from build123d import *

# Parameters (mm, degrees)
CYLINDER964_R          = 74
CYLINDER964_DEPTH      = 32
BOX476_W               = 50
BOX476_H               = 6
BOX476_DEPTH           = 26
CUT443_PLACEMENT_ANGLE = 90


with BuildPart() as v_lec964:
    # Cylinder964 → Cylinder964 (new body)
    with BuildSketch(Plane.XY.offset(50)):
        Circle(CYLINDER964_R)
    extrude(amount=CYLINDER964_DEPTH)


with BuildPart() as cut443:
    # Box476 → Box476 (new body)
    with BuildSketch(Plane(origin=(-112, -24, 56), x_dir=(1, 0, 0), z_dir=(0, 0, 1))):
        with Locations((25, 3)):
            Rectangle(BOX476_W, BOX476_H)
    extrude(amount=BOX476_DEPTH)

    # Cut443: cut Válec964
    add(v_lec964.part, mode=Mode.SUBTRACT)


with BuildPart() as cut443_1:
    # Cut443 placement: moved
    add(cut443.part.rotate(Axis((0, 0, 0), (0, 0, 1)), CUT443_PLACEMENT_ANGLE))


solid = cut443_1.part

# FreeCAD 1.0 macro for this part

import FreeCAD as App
import Part
import Sketcher
from FreeCAD import Vector
Q = App.Units.Quantity

doc = App.newDocument("Part")
body = doc.addObject("PartDesign::Body", "Body")

sketch1 = body.newObject("Sketcher::SketchObject", "Sketch")
sketch1.AttachmentSupport = (doc.getObject("XY_Plane"), [""])
sketch1.MapMode = "FlatFace"
sketch1.AttachmentOffset = App.Placement(Vector(0, 0, 50), App.Rotation())
sketch1.addGeometry(Part.Circle(Vector(0, 0, 0), Vector(0, 0, 1), 74), False)
sketch1.addConstraint([
    Sketcher.Constraint("Coincident", 0, 3, -1, 1),
    Sketcher.Constraint("Diameter", 0, Q("148 mm")),
])
pad1 = body.newObject("PartDesign::Pad", "Pad")
pad1.Profile = sketch1
pad1.Length = 32
body2 = doc.addObject("PartDesign::Body", "Body001")

sketch2 = body2.newObject("Sketcher::SketchObject", "Sketch001")
sketch2.AttachmentSupport = (doc.getObject("XY_Plane001"), [""])
sketch2.MapMode = "FlatFace"
sketch2.AttachmentOffset = App.Placement(Vector(0, 0, 56), App.Rotation())
sketch2.addGeometry([
    Part.LineSegment(Vector(-112, -18, 0), Vector(-112, -24, 0)),
    Part.LineSegment(Vector(-112, -24, 0), Vector(-62, -24, 0)),
    Part.LineSegment(Vector(-62, -24, 0), Vector(-62, -18, 0)),
    Part.LineSegment(Vector(-62, -18, 0), Vector(-112, -18, 0)),
], False)
sketch2.addConstraint([
    Sketcher.Constraint("Coincident", 0, 2, 1, 1),
    Sketcher.Constraint("Coincident", 1, 2, 2, 1),
    Sketcher.Constraint("Coincident", 2, 2, 3, 1),
    Sketcher.Constraint("Coincident", 3, 2, 0, 1),
    Sketcher.Constraint("Vertical", 0),
    Sketcher.Constraint("Horizontal", 1),
    Sketcher.Constraint("Vertical", 2),
    Sketcher.Constraint("Horizontal", 3),
    Sketcher.Constraint("DistanceX", 1, 1, 1, 2, Q("50 mm")),
    Sketcher.Constraint("DistanceY", 0, 2, 0, 1, Q("6 mm")),
    Sketcher.Constraint("DistanceX", 0, 2, -1, 1, Q("112 mm")),
    Sketcher.Constraint("DistanceY", 0, 2, -1, 1, Q("24 mm")),
])
pad2 = body2.newObject("PartDesign::Pad", "Pad001")
pad2.Profile = sketch2
pad2.Length = 26
doc.recompute()

boolean = body2.newObject("PartDesign::Boolean", "Boolean")
boolean.Type = "Cut"
boolean.addObjects([body])
body3 = doc.addObject("PartDesign::Body", "Body002")
doc.recompute()

body2.Placement = App.Placement(Vector(0, 0, 0), App.Rotation(Vector(0, 0, 1), 90))
boolean2 = body3.newObject("PartDesign::Boolean", "Boolean001")
boolean2.Type = "Fuse"
boolean2.addObjects([body2])

doc.recompute()
